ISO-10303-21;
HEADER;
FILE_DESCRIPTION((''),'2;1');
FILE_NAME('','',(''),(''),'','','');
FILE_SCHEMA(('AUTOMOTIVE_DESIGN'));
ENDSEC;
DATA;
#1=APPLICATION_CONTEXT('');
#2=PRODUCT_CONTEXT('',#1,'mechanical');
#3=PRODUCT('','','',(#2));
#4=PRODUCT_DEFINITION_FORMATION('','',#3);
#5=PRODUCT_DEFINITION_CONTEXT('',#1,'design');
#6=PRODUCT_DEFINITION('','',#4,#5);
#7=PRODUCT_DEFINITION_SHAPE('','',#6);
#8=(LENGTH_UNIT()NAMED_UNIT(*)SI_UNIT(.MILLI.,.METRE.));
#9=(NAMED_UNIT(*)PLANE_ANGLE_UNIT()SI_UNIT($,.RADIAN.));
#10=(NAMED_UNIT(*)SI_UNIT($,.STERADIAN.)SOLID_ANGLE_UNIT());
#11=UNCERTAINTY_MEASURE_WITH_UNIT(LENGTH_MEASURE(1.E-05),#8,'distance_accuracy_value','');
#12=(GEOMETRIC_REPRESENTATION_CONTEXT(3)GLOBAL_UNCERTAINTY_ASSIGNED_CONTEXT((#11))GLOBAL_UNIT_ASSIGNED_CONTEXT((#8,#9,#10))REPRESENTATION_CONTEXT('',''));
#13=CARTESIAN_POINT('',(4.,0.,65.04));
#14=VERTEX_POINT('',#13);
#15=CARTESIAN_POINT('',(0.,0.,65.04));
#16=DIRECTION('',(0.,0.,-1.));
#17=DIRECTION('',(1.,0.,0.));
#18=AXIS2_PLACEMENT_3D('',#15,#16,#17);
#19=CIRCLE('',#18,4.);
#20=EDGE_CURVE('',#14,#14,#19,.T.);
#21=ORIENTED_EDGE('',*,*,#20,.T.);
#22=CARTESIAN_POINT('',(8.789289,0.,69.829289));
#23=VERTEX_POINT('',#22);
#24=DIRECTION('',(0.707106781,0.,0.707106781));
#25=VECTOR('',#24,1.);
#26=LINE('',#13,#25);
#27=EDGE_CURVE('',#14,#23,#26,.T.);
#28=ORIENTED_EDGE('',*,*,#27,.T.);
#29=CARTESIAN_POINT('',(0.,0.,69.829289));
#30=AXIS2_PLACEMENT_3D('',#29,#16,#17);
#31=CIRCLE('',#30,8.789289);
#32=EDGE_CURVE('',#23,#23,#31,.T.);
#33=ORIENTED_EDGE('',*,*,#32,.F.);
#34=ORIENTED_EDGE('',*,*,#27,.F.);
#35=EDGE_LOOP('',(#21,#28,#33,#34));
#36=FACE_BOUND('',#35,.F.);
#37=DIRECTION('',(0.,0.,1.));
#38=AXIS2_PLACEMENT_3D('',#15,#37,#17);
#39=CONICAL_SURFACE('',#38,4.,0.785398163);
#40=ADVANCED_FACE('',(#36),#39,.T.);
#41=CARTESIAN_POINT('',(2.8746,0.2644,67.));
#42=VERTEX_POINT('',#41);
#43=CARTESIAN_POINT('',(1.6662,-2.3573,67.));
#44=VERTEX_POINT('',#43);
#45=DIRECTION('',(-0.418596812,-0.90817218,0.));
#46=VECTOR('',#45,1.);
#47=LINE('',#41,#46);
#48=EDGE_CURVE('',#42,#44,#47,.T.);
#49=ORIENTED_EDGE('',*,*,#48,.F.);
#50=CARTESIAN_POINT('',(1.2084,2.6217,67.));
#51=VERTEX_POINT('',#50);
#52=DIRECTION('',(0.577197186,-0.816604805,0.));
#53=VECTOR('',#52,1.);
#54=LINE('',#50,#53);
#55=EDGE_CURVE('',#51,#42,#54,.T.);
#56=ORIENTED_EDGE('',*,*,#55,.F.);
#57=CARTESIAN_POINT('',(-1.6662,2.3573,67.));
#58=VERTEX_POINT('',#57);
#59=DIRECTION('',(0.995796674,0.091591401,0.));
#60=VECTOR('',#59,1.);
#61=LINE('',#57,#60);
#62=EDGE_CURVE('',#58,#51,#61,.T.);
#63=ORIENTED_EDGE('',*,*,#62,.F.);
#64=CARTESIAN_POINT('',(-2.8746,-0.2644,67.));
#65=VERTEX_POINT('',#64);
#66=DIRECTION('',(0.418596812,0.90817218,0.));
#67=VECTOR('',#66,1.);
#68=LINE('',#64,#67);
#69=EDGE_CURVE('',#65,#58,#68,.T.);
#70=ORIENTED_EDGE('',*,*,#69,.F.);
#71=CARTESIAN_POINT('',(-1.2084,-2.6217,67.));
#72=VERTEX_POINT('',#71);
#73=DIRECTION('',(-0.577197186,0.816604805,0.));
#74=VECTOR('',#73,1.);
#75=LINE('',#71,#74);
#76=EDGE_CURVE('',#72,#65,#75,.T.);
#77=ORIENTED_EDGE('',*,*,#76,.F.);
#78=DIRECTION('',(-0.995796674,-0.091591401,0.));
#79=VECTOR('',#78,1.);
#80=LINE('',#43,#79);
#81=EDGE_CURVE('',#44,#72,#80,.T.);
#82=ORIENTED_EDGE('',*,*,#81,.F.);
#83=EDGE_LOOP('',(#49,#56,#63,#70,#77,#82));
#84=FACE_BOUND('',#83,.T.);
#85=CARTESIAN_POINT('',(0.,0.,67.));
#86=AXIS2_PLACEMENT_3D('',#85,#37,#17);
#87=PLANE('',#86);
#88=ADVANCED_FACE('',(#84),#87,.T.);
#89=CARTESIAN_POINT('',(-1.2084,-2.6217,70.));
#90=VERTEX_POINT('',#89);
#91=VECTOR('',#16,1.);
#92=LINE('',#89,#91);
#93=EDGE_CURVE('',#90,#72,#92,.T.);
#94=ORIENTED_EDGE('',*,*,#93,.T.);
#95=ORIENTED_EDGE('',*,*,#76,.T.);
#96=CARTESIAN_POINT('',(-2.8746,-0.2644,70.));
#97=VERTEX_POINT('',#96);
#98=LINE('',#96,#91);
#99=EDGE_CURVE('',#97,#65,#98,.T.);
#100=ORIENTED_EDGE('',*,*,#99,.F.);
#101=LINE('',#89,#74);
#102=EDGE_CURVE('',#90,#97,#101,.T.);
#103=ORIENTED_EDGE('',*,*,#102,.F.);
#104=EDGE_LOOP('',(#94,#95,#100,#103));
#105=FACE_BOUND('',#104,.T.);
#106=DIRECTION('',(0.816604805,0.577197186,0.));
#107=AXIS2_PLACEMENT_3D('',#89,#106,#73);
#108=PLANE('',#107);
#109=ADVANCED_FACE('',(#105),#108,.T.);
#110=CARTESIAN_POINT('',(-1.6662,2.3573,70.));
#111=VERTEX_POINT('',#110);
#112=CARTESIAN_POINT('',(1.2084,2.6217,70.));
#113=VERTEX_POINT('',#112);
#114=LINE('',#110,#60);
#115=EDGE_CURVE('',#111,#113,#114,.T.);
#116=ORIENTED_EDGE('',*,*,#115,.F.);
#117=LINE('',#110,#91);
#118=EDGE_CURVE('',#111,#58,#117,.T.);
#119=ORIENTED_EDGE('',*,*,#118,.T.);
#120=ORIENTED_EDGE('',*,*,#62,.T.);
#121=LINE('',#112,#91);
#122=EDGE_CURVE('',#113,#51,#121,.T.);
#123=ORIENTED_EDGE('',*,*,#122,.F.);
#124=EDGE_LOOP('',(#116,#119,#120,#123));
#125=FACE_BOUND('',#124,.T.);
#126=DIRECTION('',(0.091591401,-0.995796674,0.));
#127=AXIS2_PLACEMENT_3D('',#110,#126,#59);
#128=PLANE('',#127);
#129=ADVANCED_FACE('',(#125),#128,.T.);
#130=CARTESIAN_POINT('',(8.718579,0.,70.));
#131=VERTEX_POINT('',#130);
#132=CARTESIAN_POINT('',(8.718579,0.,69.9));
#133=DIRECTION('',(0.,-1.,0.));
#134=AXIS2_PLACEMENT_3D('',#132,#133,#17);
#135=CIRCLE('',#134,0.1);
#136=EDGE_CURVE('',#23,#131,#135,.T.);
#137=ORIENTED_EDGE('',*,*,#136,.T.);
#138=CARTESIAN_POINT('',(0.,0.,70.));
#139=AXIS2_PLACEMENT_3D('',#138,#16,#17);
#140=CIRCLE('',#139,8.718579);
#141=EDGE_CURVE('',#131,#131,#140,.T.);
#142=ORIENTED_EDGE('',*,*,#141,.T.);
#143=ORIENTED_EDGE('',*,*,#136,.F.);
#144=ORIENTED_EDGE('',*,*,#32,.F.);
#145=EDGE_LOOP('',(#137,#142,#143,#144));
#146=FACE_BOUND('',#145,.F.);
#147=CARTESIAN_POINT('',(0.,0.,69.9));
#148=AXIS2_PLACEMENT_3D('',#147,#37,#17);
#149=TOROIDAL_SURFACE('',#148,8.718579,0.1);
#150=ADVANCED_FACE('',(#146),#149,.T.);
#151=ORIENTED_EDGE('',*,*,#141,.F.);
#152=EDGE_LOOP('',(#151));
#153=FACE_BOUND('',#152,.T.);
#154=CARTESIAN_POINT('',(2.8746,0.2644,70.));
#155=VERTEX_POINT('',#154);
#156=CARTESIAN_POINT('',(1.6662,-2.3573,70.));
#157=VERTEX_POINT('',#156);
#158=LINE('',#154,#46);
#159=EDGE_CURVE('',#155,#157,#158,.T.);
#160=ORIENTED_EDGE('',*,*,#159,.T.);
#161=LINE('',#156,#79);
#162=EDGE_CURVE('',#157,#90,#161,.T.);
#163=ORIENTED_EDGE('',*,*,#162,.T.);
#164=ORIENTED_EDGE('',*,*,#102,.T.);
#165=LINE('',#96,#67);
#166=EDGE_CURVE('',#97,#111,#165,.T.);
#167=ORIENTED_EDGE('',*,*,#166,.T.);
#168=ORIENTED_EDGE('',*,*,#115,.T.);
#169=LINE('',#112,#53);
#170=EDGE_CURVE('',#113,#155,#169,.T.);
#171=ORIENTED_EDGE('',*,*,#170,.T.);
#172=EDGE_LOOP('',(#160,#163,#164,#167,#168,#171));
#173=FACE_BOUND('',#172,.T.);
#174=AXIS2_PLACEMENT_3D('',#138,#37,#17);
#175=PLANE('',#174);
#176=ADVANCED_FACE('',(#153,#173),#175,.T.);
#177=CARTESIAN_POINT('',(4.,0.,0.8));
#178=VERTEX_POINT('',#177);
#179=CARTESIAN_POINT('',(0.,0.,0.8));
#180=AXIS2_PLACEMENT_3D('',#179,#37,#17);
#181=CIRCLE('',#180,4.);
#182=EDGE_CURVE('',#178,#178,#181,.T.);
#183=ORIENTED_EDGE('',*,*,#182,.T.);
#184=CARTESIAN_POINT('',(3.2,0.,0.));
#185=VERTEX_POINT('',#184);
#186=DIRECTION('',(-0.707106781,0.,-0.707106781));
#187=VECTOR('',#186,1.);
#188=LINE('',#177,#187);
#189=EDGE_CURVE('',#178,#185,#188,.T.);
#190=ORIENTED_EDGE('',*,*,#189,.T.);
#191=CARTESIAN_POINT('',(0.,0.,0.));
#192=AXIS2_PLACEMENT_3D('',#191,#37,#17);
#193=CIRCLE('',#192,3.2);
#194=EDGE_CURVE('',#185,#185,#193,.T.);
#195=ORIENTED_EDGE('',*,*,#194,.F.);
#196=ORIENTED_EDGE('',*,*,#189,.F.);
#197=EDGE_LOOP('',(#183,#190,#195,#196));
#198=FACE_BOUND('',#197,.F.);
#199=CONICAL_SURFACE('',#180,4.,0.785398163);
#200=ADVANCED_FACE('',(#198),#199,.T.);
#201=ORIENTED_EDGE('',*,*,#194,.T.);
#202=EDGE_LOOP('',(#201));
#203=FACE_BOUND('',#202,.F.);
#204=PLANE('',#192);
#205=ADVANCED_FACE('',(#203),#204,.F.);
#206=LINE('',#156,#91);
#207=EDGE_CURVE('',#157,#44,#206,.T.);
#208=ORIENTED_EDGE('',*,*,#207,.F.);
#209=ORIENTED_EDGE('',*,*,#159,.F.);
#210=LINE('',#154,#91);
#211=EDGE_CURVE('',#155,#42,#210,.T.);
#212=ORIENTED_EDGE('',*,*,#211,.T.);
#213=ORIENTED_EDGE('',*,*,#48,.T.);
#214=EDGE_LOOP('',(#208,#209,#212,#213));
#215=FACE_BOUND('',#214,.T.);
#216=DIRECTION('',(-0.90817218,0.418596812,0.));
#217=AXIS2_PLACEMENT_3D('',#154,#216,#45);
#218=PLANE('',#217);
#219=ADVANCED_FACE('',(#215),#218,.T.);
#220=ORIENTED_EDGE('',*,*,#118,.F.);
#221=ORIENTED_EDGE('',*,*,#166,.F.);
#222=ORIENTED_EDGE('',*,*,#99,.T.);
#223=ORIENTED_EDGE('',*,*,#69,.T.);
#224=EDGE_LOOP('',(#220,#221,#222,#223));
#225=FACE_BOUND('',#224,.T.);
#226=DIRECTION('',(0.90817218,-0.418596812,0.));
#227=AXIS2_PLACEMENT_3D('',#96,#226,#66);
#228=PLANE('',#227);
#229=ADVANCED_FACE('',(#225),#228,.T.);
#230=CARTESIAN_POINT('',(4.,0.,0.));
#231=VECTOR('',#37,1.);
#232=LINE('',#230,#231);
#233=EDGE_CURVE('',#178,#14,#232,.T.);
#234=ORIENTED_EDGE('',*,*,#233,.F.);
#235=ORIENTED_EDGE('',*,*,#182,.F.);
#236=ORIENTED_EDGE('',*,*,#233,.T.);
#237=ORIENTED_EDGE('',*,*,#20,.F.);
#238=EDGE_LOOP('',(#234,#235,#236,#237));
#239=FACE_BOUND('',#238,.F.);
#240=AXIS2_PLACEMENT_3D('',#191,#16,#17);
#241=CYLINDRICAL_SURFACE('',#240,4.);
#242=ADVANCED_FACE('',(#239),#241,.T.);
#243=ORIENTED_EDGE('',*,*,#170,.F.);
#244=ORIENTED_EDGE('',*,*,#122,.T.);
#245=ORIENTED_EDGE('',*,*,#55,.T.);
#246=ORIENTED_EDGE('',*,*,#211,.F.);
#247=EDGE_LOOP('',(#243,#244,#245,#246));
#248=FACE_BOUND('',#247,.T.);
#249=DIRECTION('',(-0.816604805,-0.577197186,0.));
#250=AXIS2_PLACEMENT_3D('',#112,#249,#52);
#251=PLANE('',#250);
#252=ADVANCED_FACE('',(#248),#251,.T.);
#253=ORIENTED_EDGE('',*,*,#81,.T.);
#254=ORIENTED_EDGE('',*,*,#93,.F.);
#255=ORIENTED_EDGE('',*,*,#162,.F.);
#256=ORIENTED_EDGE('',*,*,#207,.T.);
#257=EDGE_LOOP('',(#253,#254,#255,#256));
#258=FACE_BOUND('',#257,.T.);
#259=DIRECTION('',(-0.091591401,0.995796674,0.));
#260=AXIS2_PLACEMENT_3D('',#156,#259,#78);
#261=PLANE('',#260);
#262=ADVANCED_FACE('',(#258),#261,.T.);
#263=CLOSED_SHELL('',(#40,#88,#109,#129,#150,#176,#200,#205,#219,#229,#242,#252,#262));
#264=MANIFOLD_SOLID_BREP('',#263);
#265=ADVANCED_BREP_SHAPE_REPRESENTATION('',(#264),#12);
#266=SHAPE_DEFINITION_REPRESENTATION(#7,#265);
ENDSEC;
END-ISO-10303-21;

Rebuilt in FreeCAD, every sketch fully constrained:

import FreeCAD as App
import Part
import Sketcher
from FreeCAD import Vector
Q = App.Units.Quantity


def edges_at(feature, points):
    """Names of the edges that pass closest to the given points."""
    edges = feature.Shape.Edges
    near = lambda p: min(range(len(edges)), key=lambda i: edges[i].distToShape(Part.Vertex(*p))[0])
    return sorted({f"Edge{near(p) + 1}" for p in points})


def add_polygon(sketch, points):
    """Adds a closed chain of lines whose ends are joined by coincident constraints."""
    first, n = sketch.GeometryCount, len(points)
    for a, b in zip(points, points[1:] + points[:1]):
        sketch.addGeometry(Part.LineSegment(App.Vector(*a, 0), App.Vector(*b, 0)), False)
    for i in range(n):
        sketch.addConstraint(Sketcher.Constraint("Coincident", first + i, 2, first + (i + 1) % n, 1))

doc = App.newDocument("Part")
body = doc.addObject("PartDesign::Body", "Body")

# Sketch on XY plane
sketch1 = body.newObject("Sketcher::SketchObject", "Sketch")
sketch1.AttachmentSupport = (doc.getObject("XY_Plane"), [""])
sketch1.MapMode = "FlatFace"
sketch1.addGeometry(Part.Circle(Vector(0, 0, 0), Vector(0, 0, 1), 4), False)
sketch1.addConstraint([
    Sketcher.Constraint("Coincident", 0, 3, -1, 1),
    Sketcher.Constraint("Diameter", 0, Q("8 mm")),
])
pad1 = body.newObject("PartDesign::Pad", "Pad")
pad1.Profile = sketch1
pad1.Length = 65.04

# Sketch on XY plane
sketch2 = body.newObject("Sketcher::SketchObject", "Sketch001")
sketch2.AttachmentSupport = (doc.getObject("XY_Plane"), [""])
sketch2.MapMode = "FlatFace"
sketch2.AttachmentOffset = App.Placement(Vector(0, 0, 65.04), App.Rotation())
sketch2.addGeometry(Part.Circle(Vector(0, 0, 0), Vector(0, 0, 1), 4), False)
sketch2.addConstraint([
    Sketcher.Constraint("Coincident", 0, 3, -1, 1),
    Sketcher.Constraint("Diameter", 0, Q("8 mm")),
])
pad2 = body.newObject("PartDesign::Pad", "Pad001")
pad2.Profile = sketch2
pad2.Length = 4.96
pad2.TaperAngle = 45

# Sketch on XY plane
sketch3 = body.newObject("Sketcher::SketchObject", "Sketch002")
sketch3.AttachmentSupport = (doc.getObject("XY_Plane"), [""])
sketch3.MapMode = "FlatFace"
sketch3.AttachmentOffset = App.Placement(Vector(0, 0, 70), App.Rotation())
add_polygon(sketch3, [(2.9, 0.3), (1.2, 2.6), (-1.7, 2.4), (-2.9, -0.3), (-1.2, -2.6), (1.7, -2.4)])  # lines 0-5
sketch3.addConstraint([
    Sketcher.Constraint("Symmetric", 0, 2, 3, 2, -1, 1),
    Sketcher.Constraint("Symmetric", 1, 2, 4, 2, -1, 1),
    Sketcher.Constraint("Symmetric", 2, 2, 5, 2, -1, 1),
    Sketcher.Constraint("Equal", 0, 1),
    Sketcher.Constraint("Equal", 1, 2),
    Sketcher.Constraint("DistanceX", 2, 2, 0, 2, Q("4.083 mm")),
    Sketcher.Constraint("DistanceY", 2, 2, 0, 2, Q("2.886 mm")),
    Sketcher.Constraint("DistanceY", 3, 2, 1, 2, Q("4.979 mm")),
    Sketcher.Constraint("Distance", 0, Q("2.8867 mm")),
])
pocket1 = body.newObject("PartDesign::Pocket", "Pocket")
pocket1.Profile = sketch3
pocket1.Length = 3
doc.recompute()

chamfer = body.newObject("PartDesign::Chamfer", "Chamfer")
chamfer.Base = (pocket1, edges_at(pocket1, [(-4, 0, 0)]))
chamfer.Size = 0.8
doc.recompute()

fillet = body.newObject("PartDesign::Fillet", "Fillet")
fillet.Base = (chamfer, edges_at(chamfer, [(-8.96, 0, 70)]))
fillet.Radius = 0.1

doc.recompute()
